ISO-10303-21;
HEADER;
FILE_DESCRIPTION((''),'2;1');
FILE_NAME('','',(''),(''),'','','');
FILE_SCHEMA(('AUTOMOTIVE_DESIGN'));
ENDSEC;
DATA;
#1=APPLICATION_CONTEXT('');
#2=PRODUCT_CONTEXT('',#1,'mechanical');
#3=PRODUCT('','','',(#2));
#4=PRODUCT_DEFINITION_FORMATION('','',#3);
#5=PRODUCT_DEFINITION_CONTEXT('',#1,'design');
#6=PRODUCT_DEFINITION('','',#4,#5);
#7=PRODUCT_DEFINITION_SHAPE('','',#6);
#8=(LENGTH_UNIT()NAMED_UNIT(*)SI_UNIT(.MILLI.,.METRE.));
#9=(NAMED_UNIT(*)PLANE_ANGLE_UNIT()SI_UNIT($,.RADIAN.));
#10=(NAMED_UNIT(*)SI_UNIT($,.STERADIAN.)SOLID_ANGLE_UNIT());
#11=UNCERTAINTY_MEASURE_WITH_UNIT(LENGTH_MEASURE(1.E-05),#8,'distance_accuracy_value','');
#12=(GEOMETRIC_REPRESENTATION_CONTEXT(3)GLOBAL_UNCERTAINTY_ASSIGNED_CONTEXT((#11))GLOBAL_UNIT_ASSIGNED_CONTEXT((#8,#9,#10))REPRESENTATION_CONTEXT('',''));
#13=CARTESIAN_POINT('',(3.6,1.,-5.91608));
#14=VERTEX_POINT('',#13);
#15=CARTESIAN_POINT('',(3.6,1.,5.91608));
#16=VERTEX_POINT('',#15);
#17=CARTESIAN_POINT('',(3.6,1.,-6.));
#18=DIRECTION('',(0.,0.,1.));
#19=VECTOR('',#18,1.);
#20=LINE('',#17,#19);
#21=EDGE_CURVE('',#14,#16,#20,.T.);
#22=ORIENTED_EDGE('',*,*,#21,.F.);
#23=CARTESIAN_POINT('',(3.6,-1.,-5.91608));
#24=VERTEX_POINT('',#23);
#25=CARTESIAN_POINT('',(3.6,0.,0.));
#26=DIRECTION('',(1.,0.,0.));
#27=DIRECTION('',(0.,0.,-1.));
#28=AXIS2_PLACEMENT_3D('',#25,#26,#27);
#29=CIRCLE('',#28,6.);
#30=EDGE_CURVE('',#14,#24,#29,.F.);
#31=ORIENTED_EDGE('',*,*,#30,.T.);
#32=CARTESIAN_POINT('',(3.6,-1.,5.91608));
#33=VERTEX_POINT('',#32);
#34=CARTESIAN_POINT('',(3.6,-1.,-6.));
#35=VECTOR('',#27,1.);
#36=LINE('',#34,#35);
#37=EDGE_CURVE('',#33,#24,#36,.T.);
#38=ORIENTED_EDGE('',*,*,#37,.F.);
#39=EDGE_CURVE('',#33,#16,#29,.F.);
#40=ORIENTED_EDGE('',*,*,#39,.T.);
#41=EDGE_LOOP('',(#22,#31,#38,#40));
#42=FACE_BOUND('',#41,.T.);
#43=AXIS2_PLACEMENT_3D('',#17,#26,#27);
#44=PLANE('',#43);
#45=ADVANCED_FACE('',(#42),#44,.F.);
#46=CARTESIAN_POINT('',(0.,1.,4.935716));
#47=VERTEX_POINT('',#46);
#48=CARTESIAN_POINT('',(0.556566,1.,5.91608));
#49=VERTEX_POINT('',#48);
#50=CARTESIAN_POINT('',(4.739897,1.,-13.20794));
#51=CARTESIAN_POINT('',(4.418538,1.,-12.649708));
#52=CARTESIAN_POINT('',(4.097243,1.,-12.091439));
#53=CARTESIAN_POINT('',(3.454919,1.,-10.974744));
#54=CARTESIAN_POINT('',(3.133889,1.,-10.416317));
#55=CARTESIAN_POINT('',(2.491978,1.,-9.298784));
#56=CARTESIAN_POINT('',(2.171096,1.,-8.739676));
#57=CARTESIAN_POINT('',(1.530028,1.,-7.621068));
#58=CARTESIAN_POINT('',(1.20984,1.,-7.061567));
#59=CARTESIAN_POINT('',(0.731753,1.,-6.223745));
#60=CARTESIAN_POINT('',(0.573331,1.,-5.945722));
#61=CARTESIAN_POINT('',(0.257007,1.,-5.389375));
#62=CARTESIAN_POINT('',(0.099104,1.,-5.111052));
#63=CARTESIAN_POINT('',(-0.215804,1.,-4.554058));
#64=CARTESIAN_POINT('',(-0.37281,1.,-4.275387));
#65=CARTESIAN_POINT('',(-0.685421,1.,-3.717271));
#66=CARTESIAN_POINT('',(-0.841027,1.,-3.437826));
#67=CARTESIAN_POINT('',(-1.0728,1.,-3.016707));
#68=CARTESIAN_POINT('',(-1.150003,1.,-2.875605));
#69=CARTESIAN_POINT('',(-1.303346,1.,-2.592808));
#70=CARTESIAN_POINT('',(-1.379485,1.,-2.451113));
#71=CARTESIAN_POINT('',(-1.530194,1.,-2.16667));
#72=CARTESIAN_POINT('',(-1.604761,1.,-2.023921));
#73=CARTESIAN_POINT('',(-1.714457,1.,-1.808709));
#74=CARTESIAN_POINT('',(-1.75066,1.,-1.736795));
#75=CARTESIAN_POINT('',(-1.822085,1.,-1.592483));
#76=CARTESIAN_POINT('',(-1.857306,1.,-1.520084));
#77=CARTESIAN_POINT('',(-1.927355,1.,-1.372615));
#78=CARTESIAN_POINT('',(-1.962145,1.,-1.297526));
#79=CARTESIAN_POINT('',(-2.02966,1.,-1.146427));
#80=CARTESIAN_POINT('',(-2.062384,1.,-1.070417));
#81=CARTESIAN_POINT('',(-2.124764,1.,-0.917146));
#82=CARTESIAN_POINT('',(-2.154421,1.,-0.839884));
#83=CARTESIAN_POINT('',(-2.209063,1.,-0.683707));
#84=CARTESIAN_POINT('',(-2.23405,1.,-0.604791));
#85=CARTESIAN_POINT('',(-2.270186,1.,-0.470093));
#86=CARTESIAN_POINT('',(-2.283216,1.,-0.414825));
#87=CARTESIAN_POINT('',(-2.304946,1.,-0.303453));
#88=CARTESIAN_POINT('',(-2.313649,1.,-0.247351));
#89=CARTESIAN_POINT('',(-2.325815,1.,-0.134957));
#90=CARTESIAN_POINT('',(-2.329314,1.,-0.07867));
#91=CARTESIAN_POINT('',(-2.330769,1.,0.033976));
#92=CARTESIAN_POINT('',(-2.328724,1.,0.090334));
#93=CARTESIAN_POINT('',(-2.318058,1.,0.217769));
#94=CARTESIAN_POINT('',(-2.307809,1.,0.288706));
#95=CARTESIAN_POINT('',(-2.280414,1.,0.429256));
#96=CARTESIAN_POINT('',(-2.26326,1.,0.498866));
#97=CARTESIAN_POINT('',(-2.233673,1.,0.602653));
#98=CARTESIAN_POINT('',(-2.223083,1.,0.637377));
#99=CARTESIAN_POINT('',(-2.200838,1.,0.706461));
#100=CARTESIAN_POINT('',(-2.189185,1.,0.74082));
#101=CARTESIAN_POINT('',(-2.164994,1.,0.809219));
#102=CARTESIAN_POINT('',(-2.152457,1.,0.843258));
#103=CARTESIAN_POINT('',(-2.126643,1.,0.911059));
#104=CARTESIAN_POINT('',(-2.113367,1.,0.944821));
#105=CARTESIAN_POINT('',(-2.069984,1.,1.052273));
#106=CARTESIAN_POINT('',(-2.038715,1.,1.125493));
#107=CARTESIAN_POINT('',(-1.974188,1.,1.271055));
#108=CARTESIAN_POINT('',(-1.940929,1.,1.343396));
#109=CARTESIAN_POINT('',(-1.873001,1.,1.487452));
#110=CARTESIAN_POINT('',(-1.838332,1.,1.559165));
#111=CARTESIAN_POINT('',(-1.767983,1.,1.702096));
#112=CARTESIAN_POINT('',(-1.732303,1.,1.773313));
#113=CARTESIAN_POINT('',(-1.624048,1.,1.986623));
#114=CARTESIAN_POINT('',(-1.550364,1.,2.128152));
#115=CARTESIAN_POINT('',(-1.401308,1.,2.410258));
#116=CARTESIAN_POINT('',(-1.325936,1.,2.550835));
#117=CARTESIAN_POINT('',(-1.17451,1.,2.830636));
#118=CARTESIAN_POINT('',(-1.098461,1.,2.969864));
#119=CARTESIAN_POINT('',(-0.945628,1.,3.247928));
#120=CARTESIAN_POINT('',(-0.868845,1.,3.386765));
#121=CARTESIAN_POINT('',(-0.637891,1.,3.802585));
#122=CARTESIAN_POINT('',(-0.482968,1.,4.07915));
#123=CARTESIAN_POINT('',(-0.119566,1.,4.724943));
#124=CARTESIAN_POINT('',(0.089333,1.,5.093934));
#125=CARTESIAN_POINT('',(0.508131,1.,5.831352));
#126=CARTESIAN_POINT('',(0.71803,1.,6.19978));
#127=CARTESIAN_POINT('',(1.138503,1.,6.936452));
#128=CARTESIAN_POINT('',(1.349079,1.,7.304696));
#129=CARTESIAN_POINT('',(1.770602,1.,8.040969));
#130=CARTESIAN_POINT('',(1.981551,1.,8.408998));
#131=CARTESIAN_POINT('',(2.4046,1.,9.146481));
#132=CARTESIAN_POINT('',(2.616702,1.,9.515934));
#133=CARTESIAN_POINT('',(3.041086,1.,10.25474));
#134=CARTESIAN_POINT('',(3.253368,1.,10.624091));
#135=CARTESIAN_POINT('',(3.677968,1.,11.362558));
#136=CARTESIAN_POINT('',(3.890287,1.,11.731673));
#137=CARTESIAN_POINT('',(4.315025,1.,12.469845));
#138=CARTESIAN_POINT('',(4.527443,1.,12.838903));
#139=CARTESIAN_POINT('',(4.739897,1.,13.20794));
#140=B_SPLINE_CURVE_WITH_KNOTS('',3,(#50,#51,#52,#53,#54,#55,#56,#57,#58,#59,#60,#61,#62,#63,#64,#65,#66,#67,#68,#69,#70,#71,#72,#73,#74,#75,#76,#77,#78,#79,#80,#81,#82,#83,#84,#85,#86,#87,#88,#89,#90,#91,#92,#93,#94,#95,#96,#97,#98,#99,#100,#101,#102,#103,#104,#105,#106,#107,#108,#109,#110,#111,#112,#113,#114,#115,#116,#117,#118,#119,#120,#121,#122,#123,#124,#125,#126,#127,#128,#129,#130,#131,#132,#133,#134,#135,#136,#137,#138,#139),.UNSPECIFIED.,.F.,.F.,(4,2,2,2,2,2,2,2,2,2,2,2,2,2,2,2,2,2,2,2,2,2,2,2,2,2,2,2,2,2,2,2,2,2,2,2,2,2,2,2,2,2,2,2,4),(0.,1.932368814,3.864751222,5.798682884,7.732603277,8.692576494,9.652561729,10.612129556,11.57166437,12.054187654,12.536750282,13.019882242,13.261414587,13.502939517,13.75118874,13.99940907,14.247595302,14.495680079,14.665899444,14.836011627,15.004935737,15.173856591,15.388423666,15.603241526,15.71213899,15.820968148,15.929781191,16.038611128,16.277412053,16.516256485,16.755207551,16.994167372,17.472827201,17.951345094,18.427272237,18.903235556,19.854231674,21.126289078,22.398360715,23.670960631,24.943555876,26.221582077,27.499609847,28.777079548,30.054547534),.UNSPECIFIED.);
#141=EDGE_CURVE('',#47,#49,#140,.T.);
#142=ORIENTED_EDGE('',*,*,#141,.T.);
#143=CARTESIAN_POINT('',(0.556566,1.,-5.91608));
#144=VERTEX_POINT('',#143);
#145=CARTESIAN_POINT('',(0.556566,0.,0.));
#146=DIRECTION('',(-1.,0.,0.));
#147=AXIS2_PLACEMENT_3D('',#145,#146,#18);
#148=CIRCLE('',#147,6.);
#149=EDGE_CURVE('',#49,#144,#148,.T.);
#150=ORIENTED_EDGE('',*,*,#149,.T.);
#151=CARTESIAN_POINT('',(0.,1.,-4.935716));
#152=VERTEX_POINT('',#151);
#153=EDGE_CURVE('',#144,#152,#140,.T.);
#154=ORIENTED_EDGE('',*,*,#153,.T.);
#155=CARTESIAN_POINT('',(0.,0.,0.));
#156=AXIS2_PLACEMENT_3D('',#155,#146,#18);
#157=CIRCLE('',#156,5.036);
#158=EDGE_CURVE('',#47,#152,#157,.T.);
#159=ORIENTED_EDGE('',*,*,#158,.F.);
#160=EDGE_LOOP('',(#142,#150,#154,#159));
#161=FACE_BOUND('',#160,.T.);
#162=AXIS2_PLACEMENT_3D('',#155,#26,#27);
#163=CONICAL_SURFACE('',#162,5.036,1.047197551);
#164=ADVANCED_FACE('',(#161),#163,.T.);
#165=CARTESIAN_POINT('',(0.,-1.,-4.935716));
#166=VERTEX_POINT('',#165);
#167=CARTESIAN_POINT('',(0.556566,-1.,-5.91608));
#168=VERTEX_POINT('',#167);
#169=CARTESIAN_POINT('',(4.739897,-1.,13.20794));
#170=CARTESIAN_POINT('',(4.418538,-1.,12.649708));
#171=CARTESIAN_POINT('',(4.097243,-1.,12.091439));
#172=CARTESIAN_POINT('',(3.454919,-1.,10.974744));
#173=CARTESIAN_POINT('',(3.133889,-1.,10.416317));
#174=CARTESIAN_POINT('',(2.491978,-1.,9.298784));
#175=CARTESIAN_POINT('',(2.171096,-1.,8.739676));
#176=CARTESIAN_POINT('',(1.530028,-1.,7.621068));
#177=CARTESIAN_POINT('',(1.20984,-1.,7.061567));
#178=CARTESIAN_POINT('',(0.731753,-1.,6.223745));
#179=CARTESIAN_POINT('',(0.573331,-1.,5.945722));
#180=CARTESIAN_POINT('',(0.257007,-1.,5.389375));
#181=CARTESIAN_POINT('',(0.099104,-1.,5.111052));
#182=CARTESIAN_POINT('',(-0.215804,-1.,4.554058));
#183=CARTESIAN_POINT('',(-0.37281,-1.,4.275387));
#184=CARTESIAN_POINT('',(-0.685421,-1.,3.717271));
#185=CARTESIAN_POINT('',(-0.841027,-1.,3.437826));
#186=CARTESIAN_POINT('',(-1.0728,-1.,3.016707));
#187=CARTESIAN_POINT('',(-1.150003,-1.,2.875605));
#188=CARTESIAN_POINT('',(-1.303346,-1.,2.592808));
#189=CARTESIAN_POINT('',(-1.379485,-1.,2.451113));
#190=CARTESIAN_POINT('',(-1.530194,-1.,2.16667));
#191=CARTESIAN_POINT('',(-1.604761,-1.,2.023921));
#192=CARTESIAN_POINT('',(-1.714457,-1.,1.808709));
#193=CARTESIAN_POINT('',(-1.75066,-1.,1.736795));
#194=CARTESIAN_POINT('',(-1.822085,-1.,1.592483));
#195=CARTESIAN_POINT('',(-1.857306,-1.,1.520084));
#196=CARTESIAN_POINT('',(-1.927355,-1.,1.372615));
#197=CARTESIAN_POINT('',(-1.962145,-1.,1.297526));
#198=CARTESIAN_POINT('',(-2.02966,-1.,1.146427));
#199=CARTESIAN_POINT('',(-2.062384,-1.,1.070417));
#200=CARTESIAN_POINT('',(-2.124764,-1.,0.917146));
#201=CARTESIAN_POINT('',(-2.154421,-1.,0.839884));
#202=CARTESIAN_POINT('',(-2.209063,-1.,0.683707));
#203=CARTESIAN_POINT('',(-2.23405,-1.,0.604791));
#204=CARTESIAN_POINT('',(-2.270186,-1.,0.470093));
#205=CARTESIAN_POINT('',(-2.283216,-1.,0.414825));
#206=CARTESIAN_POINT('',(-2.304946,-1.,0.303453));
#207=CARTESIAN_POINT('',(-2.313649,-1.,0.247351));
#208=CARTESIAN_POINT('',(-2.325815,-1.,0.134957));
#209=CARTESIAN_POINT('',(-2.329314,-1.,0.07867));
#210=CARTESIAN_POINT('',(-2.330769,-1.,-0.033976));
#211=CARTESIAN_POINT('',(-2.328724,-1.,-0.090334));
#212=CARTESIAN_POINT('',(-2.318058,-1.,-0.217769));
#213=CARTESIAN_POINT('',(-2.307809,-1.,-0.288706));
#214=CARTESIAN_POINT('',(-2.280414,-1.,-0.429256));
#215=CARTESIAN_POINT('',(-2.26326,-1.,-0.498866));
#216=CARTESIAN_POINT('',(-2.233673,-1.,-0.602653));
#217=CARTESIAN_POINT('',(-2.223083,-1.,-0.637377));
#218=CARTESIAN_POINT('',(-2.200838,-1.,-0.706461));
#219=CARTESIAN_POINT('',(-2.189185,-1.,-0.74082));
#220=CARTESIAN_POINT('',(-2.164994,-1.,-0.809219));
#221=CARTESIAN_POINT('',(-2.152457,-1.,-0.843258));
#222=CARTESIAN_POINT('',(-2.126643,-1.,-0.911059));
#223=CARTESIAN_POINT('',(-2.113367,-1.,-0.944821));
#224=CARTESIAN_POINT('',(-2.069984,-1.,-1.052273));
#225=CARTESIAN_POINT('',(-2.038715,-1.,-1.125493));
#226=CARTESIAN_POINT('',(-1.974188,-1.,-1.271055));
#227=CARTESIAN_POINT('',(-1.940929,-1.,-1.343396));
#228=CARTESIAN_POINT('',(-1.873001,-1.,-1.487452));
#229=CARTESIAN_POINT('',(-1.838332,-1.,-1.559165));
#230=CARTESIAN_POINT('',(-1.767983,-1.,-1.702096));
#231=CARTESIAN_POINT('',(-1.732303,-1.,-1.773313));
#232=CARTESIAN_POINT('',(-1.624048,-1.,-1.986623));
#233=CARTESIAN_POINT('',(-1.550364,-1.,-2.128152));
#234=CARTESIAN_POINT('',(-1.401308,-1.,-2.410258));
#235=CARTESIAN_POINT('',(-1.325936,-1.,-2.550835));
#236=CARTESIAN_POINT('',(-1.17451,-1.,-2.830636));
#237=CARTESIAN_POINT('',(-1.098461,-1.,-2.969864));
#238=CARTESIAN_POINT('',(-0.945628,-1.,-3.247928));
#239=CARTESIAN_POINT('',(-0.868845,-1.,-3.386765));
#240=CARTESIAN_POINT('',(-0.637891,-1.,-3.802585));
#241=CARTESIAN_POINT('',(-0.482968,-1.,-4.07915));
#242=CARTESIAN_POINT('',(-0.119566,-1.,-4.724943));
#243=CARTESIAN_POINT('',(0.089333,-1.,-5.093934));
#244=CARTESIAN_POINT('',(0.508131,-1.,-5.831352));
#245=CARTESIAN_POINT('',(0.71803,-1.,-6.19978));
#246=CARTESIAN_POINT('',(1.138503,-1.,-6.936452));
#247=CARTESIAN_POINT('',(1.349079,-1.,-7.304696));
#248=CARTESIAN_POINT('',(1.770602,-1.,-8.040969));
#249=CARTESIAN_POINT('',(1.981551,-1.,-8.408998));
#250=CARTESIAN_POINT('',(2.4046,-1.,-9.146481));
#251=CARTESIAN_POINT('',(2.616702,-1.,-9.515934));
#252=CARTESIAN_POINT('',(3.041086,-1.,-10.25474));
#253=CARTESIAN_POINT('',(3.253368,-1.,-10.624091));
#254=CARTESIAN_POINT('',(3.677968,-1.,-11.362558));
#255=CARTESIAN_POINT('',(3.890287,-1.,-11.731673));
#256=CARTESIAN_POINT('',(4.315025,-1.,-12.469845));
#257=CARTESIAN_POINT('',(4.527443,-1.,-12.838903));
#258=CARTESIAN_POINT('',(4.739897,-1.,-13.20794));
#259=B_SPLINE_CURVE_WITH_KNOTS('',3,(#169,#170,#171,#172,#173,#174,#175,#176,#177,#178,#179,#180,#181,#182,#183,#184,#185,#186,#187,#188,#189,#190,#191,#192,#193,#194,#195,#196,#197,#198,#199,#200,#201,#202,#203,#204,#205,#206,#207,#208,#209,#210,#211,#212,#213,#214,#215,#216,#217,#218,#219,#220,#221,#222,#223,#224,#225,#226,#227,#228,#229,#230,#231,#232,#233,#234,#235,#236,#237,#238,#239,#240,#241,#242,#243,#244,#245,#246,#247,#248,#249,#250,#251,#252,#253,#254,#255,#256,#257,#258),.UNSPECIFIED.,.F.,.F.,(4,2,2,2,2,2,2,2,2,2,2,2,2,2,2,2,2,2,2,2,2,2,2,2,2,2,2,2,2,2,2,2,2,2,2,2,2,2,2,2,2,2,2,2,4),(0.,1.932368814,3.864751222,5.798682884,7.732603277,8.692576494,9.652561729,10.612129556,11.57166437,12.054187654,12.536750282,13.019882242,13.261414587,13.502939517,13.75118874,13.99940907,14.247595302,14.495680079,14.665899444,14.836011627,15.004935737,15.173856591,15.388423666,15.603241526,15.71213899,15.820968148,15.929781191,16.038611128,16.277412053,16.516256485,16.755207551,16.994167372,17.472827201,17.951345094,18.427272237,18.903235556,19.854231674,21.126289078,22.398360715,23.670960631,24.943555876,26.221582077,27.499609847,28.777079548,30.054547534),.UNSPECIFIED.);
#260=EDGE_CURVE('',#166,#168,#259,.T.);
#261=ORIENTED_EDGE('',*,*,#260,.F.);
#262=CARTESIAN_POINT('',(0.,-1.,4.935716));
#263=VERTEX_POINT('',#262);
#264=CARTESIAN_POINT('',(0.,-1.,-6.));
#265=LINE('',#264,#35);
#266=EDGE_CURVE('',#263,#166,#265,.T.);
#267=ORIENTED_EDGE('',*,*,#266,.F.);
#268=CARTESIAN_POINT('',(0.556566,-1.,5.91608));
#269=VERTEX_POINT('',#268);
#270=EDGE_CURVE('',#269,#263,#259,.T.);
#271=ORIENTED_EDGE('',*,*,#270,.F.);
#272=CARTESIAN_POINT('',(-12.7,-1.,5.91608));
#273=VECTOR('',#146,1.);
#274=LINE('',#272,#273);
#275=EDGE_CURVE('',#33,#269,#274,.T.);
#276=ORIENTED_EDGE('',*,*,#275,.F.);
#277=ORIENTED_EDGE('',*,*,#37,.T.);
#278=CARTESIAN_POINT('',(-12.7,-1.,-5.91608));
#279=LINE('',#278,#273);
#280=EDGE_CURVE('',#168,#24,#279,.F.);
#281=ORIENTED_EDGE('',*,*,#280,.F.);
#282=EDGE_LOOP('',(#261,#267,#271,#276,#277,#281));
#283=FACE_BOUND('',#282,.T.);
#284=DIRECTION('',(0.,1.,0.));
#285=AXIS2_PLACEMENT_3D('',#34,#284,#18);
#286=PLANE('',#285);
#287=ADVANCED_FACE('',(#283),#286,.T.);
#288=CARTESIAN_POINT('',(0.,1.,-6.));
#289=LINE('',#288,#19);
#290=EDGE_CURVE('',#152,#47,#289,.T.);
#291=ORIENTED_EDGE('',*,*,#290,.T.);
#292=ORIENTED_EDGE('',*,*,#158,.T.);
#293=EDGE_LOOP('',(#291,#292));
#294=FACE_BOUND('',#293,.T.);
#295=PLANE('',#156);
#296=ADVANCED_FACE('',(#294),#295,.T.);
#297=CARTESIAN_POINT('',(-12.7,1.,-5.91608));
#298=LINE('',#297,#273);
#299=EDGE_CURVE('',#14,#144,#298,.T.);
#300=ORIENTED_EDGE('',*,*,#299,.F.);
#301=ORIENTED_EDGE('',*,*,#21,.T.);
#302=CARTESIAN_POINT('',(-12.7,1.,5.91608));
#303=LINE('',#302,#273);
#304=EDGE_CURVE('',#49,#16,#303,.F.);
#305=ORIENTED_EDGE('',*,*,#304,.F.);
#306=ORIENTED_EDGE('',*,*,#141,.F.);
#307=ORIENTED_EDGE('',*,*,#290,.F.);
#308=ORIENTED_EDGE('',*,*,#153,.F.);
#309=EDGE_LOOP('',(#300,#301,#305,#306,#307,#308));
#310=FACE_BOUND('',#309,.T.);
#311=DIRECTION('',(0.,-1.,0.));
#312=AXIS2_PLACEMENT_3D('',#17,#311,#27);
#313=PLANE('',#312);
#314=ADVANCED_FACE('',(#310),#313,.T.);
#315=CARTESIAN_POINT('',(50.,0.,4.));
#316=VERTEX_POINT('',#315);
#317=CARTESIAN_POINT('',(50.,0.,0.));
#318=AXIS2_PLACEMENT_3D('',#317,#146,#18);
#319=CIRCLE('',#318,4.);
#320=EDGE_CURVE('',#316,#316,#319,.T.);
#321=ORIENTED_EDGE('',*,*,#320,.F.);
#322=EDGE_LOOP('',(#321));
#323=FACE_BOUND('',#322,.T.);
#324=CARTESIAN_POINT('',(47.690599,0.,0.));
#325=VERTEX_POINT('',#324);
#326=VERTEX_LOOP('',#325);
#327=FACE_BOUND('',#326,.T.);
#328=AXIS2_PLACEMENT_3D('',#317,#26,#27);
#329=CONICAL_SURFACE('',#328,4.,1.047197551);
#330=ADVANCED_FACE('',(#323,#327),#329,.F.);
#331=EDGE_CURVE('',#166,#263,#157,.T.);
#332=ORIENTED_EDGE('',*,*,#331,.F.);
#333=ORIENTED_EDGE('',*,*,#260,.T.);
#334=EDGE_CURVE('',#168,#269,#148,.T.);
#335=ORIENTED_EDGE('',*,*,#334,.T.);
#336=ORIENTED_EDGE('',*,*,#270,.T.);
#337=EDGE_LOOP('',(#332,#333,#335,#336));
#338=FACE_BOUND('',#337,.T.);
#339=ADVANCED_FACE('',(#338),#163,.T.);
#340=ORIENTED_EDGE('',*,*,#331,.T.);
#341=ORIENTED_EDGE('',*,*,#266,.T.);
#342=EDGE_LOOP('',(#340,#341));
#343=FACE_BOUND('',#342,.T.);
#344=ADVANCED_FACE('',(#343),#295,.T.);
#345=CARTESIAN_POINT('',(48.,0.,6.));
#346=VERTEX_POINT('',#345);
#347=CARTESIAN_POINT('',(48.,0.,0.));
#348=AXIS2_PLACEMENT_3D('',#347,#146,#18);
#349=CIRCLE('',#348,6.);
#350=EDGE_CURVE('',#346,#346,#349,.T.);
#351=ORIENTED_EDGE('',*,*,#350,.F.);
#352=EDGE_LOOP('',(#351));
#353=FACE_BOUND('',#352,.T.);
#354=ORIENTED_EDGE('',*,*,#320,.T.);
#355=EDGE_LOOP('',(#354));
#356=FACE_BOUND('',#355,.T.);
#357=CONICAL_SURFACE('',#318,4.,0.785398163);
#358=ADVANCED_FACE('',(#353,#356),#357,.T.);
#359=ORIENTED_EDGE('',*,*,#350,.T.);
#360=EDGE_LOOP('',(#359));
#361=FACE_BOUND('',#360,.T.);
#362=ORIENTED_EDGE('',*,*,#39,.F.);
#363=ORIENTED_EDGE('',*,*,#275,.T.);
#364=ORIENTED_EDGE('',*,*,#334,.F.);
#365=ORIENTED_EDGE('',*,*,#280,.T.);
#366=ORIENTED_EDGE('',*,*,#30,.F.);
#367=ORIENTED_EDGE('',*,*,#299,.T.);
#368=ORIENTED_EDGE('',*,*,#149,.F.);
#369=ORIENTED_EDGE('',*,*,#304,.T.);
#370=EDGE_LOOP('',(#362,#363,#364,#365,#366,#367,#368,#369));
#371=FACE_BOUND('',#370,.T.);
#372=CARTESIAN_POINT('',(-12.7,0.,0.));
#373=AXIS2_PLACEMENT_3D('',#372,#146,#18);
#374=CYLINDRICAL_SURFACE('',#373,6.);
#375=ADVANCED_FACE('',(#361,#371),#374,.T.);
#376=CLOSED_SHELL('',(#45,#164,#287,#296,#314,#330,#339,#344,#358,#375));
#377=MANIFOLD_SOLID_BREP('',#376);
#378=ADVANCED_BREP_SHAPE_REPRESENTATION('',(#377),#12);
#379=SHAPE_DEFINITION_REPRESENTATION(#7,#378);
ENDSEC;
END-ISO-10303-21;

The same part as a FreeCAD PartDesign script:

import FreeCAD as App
import Part
import Sketcher
Q = App.Units.Quantity

doc = App.newDocument("Part")
body = doc.addObject("PartDesign::Body", "Body")

# Sketch on XY plane
sketch1 = body.newObject("Sketcher::SketchObject", "Sketch")
sketch1.AttachmentSupport = (doc.getObject("XY_Plane"), [""])
sketch1.MapMode = "FlatFace"
sketch1.addGeometry([
    Part.LineSegment(App.Vector(47.690599, 0, 0), App.Vector(50, 4, 0)),  # 0
    Part.LineSegment(App.Vector(50, 4, 0), App.Vector(48, 6, 0)),  # 1
    Part.LineSegment(App.Vector(48, 6, 0), App.Vector(0.556566, 6, 0)),  # 2
    Part.LineSegment(App.Vector(0.556566, 6, 0), App.Vector(0, 5.036, 0)),  # 3
    Part.LineSegment(App.Vector(0, 5.036, 0), App.Vector(0, 0, 0)),  # 4
    Part.LineSegment(App.Vector(0, 0, 0), App.Vector(47.690599, 0, 0)),  # 5
], False)
sketch1.addConstraint([
    Sketcher.Constraint("Coincident", 0, 2, 1, 1),
    Sketcher.Constraint("Coincident", 1, 2, 2, 1),
    Sketcher.Constraint("Coincident", 2, 2, 3, 1),
    Sketcher.Constraint("Coincident", 3, 2, 4, 1),
    Sketcher.Constraint("Coincident", 4, 2, 5, 1),
    Sketcher.Constraint("Coincident", 5, 2, 0, 1),
    Sketcher.Constraint("Horizontal", 2),
    Sketcher.Constraint("Vertical", 4),
    Sketcher.Constraint("Horizontal", 5),
    Sketcher.Constraint("Coincident", 4, 2, -1, 1),
    Sketcher.Constraint("Parallel", 0, 3),
    Sketcher.Constraint("Angle", 0, Q("60 deg")),
    Sketcher.Constraint("Angle", 1, Q("135 deg")),
    Sketcher.Constraint("DistanceX", -1, 1, 0, 2, 50.0),
    Sketcher.Constraint("DistanceY", -1, 1, 0, 2, 4.0),
    Sketcher.Constraint("DistanceX", -1, 1, 1, 2, 48.0),
    Sketcher.Constraint("DistanceY", 4, 2, 4, 1, 5.036),
])
revolution = body.newObject("PartDesign::Revolution", "Revolution")
revolution.Profile = sketch1
revolution.ReferenceAxis = (sketch1, ["H_Axis"])
revolution.Angle = 360

# Sketch on YZ plane
sketch2 = body.newObject("Sketcher::SketchObject", "Sketch001")
sketch2.AttachmentSupport = (doc.getObject("YZ_Plane"), [""])
sketch2.MapMode = "FlatFace"
sketch2.addGeometry([
    Part.LineSegment(App.Vector(1, 6, 0), App.Vector(-1, 6, 0)),
    Part.LineSegment(App.Vector(-1, 6, 0), App.Vector(-1, -6, 0)),
    Part.LineSegment(App.Vector(-1, -6, 0), App.Vector(1, -6, 0)),
    Part.LineSegment(App.Vector(1, -6, 0), App.Vector(1, 6, 0)),
], False)
sketch2.addConstraint([
    Sketcher.Constraint("Coincident", 0, 2, 1, 1),
    Sketcher.Constraint("Coincident", 1, 2, 2, 1),
    Sketcher.Constraint("Coincident", 2, 2, 3, 1),
    Sketcher.Constraint("Coincident", 3, 2, 0, 1),
    Sketcher.Constraint("Horizontal", 0),
    Sketcher.Constraint("Vertical", 1),
    Sketcher.Constraint("Horizontal", 2),
    Sketcher.Constraint("Vertical", 3),
    Sketcher.Constraint("Symmetric", 0, 2, 2, 2, -1, 1),
    Sketcher.Constraint("DistanceX", 0, 2, 0, 1, 2.0),
    Sketcher.Constraint("DistanceY", 1, 2, 1, 1, 12.0),
])
pocket1 = body.newObject("PartDesign::Pocket", "Pocket")
pocket1.Profile = sketch2
pocket1.Length = 3.6
pocket1.Reversed = True

doc.recompute()
